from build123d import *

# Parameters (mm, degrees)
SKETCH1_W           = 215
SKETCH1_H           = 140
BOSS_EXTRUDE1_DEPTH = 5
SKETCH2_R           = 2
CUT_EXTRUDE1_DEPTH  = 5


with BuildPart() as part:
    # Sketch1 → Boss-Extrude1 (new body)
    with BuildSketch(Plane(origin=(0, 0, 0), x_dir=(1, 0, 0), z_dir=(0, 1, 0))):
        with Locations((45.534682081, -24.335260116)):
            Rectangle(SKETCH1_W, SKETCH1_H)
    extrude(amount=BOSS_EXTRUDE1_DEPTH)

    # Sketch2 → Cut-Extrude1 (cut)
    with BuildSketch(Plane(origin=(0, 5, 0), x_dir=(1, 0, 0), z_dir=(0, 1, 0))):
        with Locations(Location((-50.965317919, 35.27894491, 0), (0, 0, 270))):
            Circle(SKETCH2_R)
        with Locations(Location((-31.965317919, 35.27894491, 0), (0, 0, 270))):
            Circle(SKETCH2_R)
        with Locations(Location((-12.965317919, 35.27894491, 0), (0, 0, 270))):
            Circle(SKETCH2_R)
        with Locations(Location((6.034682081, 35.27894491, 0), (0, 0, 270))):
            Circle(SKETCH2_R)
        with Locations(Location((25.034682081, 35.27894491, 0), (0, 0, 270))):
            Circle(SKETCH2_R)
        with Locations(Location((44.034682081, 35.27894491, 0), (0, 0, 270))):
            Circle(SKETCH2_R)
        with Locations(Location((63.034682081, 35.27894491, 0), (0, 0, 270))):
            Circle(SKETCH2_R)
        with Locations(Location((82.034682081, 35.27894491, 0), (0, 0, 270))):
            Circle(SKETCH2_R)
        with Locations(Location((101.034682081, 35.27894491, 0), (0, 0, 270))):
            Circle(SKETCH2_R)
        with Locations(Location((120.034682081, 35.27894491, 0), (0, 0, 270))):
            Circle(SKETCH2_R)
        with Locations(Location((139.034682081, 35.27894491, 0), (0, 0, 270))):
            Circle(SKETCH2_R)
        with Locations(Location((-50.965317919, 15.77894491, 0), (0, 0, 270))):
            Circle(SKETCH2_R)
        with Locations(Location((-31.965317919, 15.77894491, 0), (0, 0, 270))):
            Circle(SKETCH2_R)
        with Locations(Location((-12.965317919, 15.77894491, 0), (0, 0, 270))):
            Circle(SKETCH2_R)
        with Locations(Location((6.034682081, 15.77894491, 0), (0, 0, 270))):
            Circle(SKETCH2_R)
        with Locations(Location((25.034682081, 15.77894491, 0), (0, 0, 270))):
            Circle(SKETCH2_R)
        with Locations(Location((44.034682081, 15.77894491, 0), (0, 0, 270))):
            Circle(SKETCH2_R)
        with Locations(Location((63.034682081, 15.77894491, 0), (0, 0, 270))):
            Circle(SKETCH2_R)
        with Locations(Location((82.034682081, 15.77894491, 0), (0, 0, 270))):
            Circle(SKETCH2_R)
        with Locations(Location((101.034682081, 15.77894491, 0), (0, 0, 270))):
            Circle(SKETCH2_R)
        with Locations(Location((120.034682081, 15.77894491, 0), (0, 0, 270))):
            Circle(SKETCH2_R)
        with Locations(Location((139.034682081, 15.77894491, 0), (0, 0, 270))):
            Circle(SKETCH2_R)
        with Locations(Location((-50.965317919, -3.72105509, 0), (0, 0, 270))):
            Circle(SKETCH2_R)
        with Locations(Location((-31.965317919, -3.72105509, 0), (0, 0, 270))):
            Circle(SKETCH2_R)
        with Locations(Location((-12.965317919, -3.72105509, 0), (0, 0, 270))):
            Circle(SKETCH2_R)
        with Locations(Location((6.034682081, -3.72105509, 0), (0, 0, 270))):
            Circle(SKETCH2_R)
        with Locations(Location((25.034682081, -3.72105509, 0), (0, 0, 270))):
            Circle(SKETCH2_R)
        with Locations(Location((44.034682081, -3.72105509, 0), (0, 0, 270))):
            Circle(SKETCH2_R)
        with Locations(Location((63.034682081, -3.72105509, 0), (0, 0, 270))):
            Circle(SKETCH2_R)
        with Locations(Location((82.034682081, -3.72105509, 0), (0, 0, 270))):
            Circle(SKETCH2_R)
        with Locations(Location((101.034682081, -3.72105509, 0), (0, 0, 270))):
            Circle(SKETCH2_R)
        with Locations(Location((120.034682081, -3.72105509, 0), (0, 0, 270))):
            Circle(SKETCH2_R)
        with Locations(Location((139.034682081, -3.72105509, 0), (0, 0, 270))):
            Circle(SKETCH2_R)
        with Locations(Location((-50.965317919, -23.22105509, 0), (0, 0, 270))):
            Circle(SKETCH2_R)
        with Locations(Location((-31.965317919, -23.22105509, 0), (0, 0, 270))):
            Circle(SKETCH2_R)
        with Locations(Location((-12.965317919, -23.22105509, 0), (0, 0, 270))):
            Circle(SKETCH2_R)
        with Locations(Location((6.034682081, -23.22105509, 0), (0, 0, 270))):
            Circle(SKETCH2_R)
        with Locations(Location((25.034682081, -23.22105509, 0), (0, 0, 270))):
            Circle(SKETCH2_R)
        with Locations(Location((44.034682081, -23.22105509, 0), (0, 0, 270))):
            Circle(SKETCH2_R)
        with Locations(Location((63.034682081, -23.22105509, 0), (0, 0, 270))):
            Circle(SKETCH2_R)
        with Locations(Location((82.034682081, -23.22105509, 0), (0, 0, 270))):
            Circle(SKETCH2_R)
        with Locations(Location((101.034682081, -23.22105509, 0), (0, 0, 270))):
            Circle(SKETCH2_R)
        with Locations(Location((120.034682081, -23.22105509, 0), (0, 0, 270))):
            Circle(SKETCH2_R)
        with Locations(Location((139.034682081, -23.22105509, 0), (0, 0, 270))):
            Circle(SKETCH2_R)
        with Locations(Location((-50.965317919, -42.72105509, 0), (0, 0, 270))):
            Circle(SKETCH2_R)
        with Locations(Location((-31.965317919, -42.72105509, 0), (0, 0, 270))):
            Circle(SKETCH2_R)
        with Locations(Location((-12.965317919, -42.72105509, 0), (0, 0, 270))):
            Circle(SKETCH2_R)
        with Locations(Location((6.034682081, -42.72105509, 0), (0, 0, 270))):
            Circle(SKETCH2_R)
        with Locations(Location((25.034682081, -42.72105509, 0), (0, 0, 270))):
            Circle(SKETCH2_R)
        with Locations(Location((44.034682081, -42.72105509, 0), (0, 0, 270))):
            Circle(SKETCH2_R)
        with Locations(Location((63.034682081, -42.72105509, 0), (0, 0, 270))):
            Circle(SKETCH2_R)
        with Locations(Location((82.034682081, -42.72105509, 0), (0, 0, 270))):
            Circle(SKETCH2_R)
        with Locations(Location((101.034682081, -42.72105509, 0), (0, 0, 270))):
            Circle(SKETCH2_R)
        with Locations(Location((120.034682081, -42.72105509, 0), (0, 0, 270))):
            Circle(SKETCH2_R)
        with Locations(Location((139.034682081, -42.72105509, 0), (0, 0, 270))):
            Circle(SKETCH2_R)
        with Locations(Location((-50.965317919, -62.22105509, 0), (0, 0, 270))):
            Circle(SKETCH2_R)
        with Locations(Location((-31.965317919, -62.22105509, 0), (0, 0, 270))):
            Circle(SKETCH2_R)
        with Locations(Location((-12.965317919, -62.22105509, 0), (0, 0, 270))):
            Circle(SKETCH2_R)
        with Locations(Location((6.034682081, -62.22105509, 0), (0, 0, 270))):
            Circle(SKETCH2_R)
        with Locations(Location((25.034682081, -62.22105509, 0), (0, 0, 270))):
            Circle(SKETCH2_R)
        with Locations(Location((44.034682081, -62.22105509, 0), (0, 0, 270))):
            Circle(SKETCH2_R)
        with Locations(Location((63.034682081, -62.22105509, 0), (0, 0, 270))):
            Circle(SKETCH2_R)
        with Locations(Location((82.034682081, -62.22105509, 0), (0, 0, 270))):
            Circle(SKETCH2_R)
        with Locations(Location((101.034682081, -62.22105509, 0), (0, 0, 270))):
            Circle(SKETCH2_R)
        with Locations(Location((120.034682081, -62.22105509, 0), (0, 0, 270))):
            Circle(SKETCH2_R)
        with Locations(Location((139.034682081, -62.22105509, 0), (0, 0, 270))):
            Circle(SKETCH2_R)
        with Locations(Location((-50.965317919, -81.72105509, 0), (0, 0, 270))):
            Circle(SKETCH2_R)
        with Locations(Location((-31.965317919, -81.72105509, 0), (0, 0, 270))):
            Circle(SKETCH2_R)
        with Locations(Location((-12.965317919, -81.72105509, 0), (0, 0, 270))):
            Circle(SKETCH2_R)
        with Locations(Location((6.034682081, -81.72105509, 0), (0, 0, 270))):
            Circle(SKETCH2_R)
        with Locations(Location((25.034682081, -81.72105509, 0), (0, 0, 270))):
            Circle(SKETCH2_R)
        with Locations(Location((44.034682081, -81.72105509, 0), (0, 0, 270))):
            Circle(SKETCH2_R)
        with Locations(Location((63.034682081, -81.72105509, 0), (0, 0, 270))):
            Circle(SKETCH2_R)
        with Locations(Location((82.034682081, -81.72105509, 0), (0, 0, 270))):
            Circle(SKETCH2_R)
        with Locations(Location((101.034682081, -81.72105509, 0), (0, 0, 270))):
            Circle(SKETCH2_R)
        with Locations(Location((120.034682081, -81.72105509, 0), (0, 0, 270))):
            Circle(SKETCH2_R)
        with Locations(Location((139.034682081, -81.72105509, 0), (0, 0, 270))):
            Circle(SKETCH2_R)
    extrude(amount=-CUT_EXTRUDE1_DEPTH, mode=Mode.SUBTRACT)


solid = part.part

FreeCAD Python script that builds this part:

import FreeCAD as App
import Part
import Sketcher
Q = App.Units.Quantity


def add_polygon(sketch, points):
    """Adds a closed chain of lines whose ends are joined by coincident constraints."""
    first, n = sketch.GeometryCount, len(points)
    for a, b in zip(points, points[1:] + points[:1]):
        sketch.addGeometry(Part.LineSegment(App.Vector(*a, 0), App.Vector(*b, 0)), False)
    for i in range(n):
        sketch.addConstraint(Sketcher.Constraint("Coincident", first + i, 2, first + (i + 1) % n, 1))

doc = App.newDocument("Part")
params = doc.addObject("Spreadsheet::Sheet", "Params")
for row, (alias, value) in enumerate([
    ("sketch1_width", "215 mm"),
    ("sketch1_height", "140 mm"),
    ("pad1_length", "5 mm"),
    ("sketch2_diameter", "4 mm"),
    ("pocket1_length", "5 mm"),
], start=1):
    params.set(f"A{row}", alias)
    params.set(f"B{row}", "=" + value)
    params.setAlias(f"B{row}", alias)

body = doc.addObject("PartDesign::Body", "Body")

sketch1 = body.newObject("Sketcher::SketchObject", "Sketch")
sketch1.AttachmentSupport = (doc.getObject("XZ_Plane"), [""])
sketch1.MapMode = "FlatFace"
add_polygon(sketch1, [(-62, -46), (-62, 94), (153, 94), (153, -46)])
sketch1.addConstraint([
    Sketcher.Constraint("Vertical", 0),
    Sketcher.Constraint("Horizontal", 1),
    Sketcher.Constraint("Vertical", 2),
    Sketcher.Constraint("Horizontal", 3),
    Sketcher.Constraint("DistanceX", 1, 1, 1, 2, Q("215 mm")),
    Sketcher.Constraint("DistanceY", 0, 1, 0, 2, Q("140 mm")),
    Sketcher.Constraint("DistanceY", -1, 1, 0, 2, Q("94.33526 mm")),
    Sketcher.Constraint("DistanceX", 0, 2, -1, 1, Q("61.965318 mm")),
])
sketch1.setExpression("Constraints[8]", "Params.sketch1_width")
sketch1.setExpression("Constraints[9]", "Params.sketch1_height")
pad1 = body.newObject("PartDesign::Pad", "Pad")
pad1.Profile = sketch1
pad1.setExpression("Length", "Params.pad1_length")
pad1.Reversed = True

sketch2 = body.newObject("Sketcher::SketchObject", "Sketch001")
sketch2.AttachmentSupport = (doc.getObject("XZ_Plane"), [""])
sketch2.MapMode = "FlatFace"
sketch2.AttachmentOffset = App.Placement(App.Vector(0, 0, -5), App.Rotation())
sketch2.addGeometry([
    Part.Circle(App.Vector(-51, -35.3, 0), App.Vector(0, 0, 1), 2),
    Part.Circle(App.Vector(-32, -35.3, 0), App.Vector(0, 0, 1), 2),
    Part.Circle(App.Vector(-13, -35.3, 0), App.Vector(0, 0, 1), 2),
    Part.Circle(App.Vector(6, -35.3, 0), App.Vector(0, 0, 1), 2),
    Part.Circle(App.Vector(25, -35.3, 0), App.Vector(0, 0, 1), 2),
    Part.Circle(App.Vector(44, -35.3, 0), App.Vector(0, 0, 1), 2),
    Part.Circle(App.Vector(63, -35.3, 0), App.Vector(0, 0, 1), 2),
    Part.Circle(App.Vector(82, -35.3, 0), App.Vector(0, 0, 1), 2),
    Part.Circle(App.Vector(101, -35.3, 0), App.Vector(0, 0, 1), 2),
    Part.Circle(App.Vector(120, -35.3, 0), App.Vector(0, 0, 1), 2),
    Part.Circle(App.Vector(139, -35.3, 0), App.Vector(0, 0, 1), 2),
    Part.Circle(App.Vector(-51, -15.8, 0), App.Vector(0, 0, 1), 2),
    Part.Circle(App.Vector(-32, -15.8, 0), App.Vector(0, 0, 1), 2),
    Part.Circle(App.Vector(-13, -15.8, 0), App.Vector(0, 0, 1), 2),
    Part.Circle(App.Vector(6, -15.8, 0), App.Vector(0, 0, 1), 2),
    Part.Circle(App.Vector(25, -15.8, 0), App.Vector(0, 0, 1), 2),
    Part.Circle(App.Vector(44, -15.8, 0), App.Vector(0, 0, 1), 2),
    Part.Circle(App.Vector(63, -15.8, 0), App.Vector(0, 0, 1), 2),
    Part.Circle(App.Vector(82, -15.8, 0), App.Vector(0, 0, 1), 2),
    Part.Circle(App.Vector(101, -15.8, 0), App.Vector(0, 0, 1), 2),
    Part.Circle(App.Vector(120, -15.8, 0), App.Vector(0, 0, 1), 2),
    Part.Circle(App.Vector(139, -15.8, 0), App.Vector(0, 0, 1), 2),
    Part.Circle(App.Vector(-51, 3.7, 0), App.Vector(0, 0, 1), 2),
    Part.Circle(App.Vector(-32, 3.7, 0), App.Vector(0, 0, 1), 2),
    Part.Circle(App.Vector(-13, 3.7, 0), App.Vector(0, 0, 1), 2),
    Part.Circle(App.Vector(6, 3.7, 0), App.Vector(0, 0, 1), 2),
    Part.Circle(App.Vector(25, 3.7, 0), App.Vector(0, 0, 1), 2),
    Part.Circle(App.Vector(44, 3.7, 0), App.Vector(0, 0, 1), 2),
    Part.Circle(App.Vector(63, 3.7, 0), App.Vector(0, 0, 1), 2),
    Part.Circle(App.Vector(82, 3.7, 0), App.Vector(0, 0, 1), 2),
    Part.Circle(App.Vector(101, 3.7, 0), App.Vector(0, 0, 1), 2),
    Part.Circle(App.Vector(120, 3.7, 0), App.Vector(0, 0, 1), 2),
    Part.Circle(App.Vector(139, 3.7, 0), App.Vector(0, 0, 1), 2),
    Part.Circle(App.Vector(-51, 23.2, 0), App.Vector(0, 0, 1), 2),
    Part.Circle(App.Vector(-32, 23.2, 0), App.Vector(0, 0, 1), 2),
    Part.Circle(App.Vector(-13, 23.2, 0), App.Vector(0, 0, 1), 2),
    Part.Circle(App.Vector(6, 23.2, 0), App.Vector(0, 0, 1), 2),
    Part.Circle(App.Vector(25, 23.2, 0), App.Vector(0, 0, 1), 2),
    Part.Circle(App.Vector(44, 23.2, 0), App.Vector(0, 0, 1), 2),
    Part.Circle(App.Vector(63, 23.2, 0), App.Vector(0, 0, 1), 2),
    Part.Circle(App.Vector(82, 23.2, 0), App.Vector(0, 0, 1), 2),
    Part.Circle(App.Vector(101, 23.2, 0), App.Vector(0, 0, 1), 2),
    Part.Circle(App.Vector(120, 23.2, 0), App.Vector(0, 0, 1), 2),
    Part.Circle(App.Vector(139, 23.2, 0), App.Vector(0, 0, 1), 2),
    Part.Circle(App.Vector(-51, 42.7, 0), App.Vector(0, 0, 1), 2),
    Part.Circle(App.Vector(-32, 42.7, 0), App.Vector(0, 0, 1), 2),
    Part.Circle(App.Vector(-13, 42.7, 0), App.Vector(0, 0, 1), 2),
    Part.Circle(App.Vector(6, 42.7, 0), App.Vector(0, 0, 1), 2),
    Part.Circle(App.Vector(25, 42.7, 0), App.Vector(0, 0, 1), 2),
    Part.Circle(App.Vector(44, 42.7, 0), App.Vector(0, 0, 1), 2),
    Part.Circle(App.Vector(63, 42.7, 0), App.Vector(0, 0, 1), 2),
    Part.Circle(App.Vector(82, 42.7, 0), App.Vector(0, 0, 1), 2),
    Part.Circle(App.Vector(101, 42.7, 0), App.Vector(0, 0, 1), 2),
    Part.Circle(App.Vector(120, 42.7, 0), App.Vector(0, 0, 1), 2),
    Part.Circle(App.Vector(139, 42.7, 0), App.Vector(0, 0, 1), 2),
    Part.Circle(App.Vector(-51, 62.2, 0), App.Vector(0, 0, 1), 2),
    Part.Circle(App.Vector(-32, 62.2, 0), App.Vector(0, 0, 1), 2),
    Part.Circle(App.Vector(-13, 62.2, 0), App.Vector(0, 0, 1), 2),
    Part.Circle(App.Vector(6, 62.2, 0), App.Vector(0, 0, 1), 2),
    Part.Circle(App.Vector(25, 62.2, 0), App.Vector(0, 0, 1), 2),
    Part.Circle(App.Vector(44, 62.2, 0), App.Vector(0, 0, 1), 2),
    Part.Circle(App.Vector(63, 62.2, 0), App.Vector(0, 0, 1), 2),
    Part.Circle(App.Vector(82, 62.2, 0), App.Vector(0, 0, 1), 2),
    Part.Circle(App.Vector(101, 62.2, 0), App.Vector(0, 0, 1), 2),
    Part.Circle(App.Vector(120, 62.2, 0), App.Vector(0, 0, 1), 2),
    Part.Circle(App.Vector(139, 62.2, 0), App.Vector(0, 0, 1), 2),
    Part.Circle(App.Vector(-51, 81.7, 0), App.Vector(0, 0, 1), 2),
    Part.Circle(App.Vector(-32, 81.7, 0), App.Vector(0, 0, 1), 2),
    Part.Circle(App.Vector(-13, 81.7, 0), App.Vector(0, 0, 1), 2),
    Part.Circle(App.Vector(6, 81.7, 0), App.Vector(0, 0, 1), 2),
    Part.Circle(App.Vector(25, 81.7, 0), App.Vector(0, 0, 1), 2),
    Part.Circle(App.Vector(44, 81.7, 0), App.Vector(0, 0, 1), 2),
    Part.Circle(App.Vector(63, 81.7, 0), App.Vector(0, 0, 1), 2),
    Part.Circle(App.Vector(82, 81.7, 0), App.Vector(0, 0, 1), 2),
    Part.Circle(App.Vector(101, 81.7, 0), App.Vector(0, 0, 1), 2),
    Part.Circle(App.Vector(120, 81.7, 0), App.Vector(0, 0, 1), 2),
    Part.Circle(App.Vector(139, 81.7, 0), App.Vector(0, 0, 1), 2),
], False)
sketch2.addConstraint([
    Sketcher.Constraint("Equal", 0, 1),
    Sketcher.Constraint("Equal", 1, 2),
    Sketcher.Constraint("Equal", 2, 3),
    Sketcher.Constraint("Equal", 3, 4),
    Sketcher.Constraint("Equal", 4, 5),
    Sketcher.Constraint("Equal", 5, 6),
    Sketcher.Constraint("Equal", 6, 7),
    Sketcher.Constraint("Equal", 7, 8),
    Sketcher.Constraint("Equal", 8, 9),
    Sketcher.Constraint("Equal", 9, 10),
    Sketcher.Constraint("Equal", 10, 11),
    Sketcher.Constraint("Equal", 11, 12),
    Sketcher.Constraint("Equal", 12, 13),
    Sketcher.Constraint("Equal", 13, 14),
    Sketcher.Constraint("Equal", 14, 15),
    Sketcher.Constraint("Equal", 15, 16),
    Sketcher.Constraint("Equal", 16, 17),
    Sketcher.Constraint("Equal", 17, 18),
    Sketcher.Constraint("Equal", 18, 19),
    Sketcher.Constraint("Equal", 19, 20),
    Sketcher.Constraint("Equal", 20, 21),
    Sketcher.Constraint("Equal", 21, 22),
    Sketcher.Constraint("Equal", 22, 23),
    Sketcher.Constraint("Equal", 23, 24),
    Sketcher.Constraint("Equal", 24, 25),
    Sketcher.Constraint("Equal", 25, 26),
    Sketcher.Constraint("Equal", 26, 27),
    Sketcher.Constraint("Equal", 27, 28),
    Sketcher.Constraint("Equal", 28, 29),
    Sketcher.Constraint("Equal", 29, 30),
    Sketcher.Constraint("Equal", 30, 31),
    Sketcher.Constraint("Equal", 31, 32),
    Sketcher.Constraint("Equal", 32, 33),
    Sketcher.Constraint("Equal", 33, 34),
    Sketcher.Constraint("Equal", 34, 35),
    Sketcher.Constraint("Equal", 35, 36),
    Sketcher.Constraint("Equal", 36, 37),
    Sketcher.Constraint("Equal", 37, 38),
    Sketcher.Constraint("Equal", 38, 39),
    Sketcher.Constraint("Equal", 39, 40),
    Sketcher.Constraint("Equal", 40, 41),
    Sketcher.Constraint("Equal", 41, 42),
    Sketcher.Constraint("Equal", 42, 43),
    Sketcher.Constraint("Equal", 43, 44),
    Sketcher.Constraint("Equal", 44, 45),
    Sketcher.Constraint("Equal", 45, 46),
    Sketcher.Constraint("Equal", 46, 47),
    Sketcher.Constraint("Equal", 47, 48),
    Sketcher.Constraint("Equal", 48, 49),
    Sketcher.Constraint("Equal", 49, 50),
    Sketcher.Constraint("Equal", 50, 51),
    Sketcher.Constraint("Equal", 51, 52),
    Sketcher.Constraint("Equal", 52, 53),
    Sketcher.Constraint("Equal", 53, 54),
    Sketcher.Constraint("Equal", 54, 55),
    Sketcher.Constraint("Equal", 55, 56),
    Sketcher.Constraint("Equal", 56, 57),
    Sketcher.Constraint("Equal", 57, 58),
    Sketcher.Constraint("Equal", 58, 59),
    Sketcher.Constraint("Equal", 59, 60),
    Sketcher.Constraint("Equal", 60, 61),
    Sketcher.Constraint("Equal", 61, 62),
    Sketcher.Constraint("Equal", 62, 63),
    Sketcher.Constraint("Equal", 63, 64),
    Sketcher.Constraint("Equal", 64, 65),
    Sketcher.Constraint("Equal", 65, 66),
    Sketcher.Constraint("Equal", 66, 67),
    Sketcher.Constraint("Equal", 67, 68),
    Sketcher.Constraint("Equal", 68, 69),
    Sketcher.Constraint("Equal", 69, 70),
    Sketcher.Constraint("Equal", 70, 71),
    Sketcher.Constraint("Equal", 71, 72),
    Sketcher.Constraint("Equal", 72, 73),
    Sketcher.Constraint("Equal", 73, 74),
    Sketcher.Constraint("Equal", 74, 75),
    Sketcher.Constraint("Equal", 75, 76),
    Sketcher.Constraint("Horizontal", 0, 3, 1, 3),
    Sketcher.Constraint("Horizontal", 1, 3, 2, 3),
    Sketcher.Constraint("Horizontal", 2, 3, 3, 3),
    Sketcher.Constraint("Horizontal", 3, 3, 4, 3),
    Sketcher.Constraint("Horizontal", 4, 3, 5, 3),
    Sketcher.Constraint("Horizontal", 5, 3, 6, 3),
    Sketcher.Constraint("Horizontal", 6, 3, 7, 3),
    Sketcher.Constraint("Horizontal", 7, 3, 8, 3),
    Sketcher.Constraint("Horizontal", 8, 3, 9, 3),
    Sketcher.Constraint("Horizontal", 9, 3, 10, 3),
    Sketcher.Constraint("Horizontal", 11, 3, 12, 3),
    Sketcher.Constraint("Horizontal", 12, 3, 13, 3),
    Sketcher.Constraint("Horizontal", 13, 3, 14, 3),
    Sketcher.Constraint("Horizontal", 14, 3, 15, 3),
    Sketcher.Constraint("Horizontal", 15, 3, 16, 3),
    Sketcher.Constraint("Horizontal", 16, 3, 17, 3),
    Sketcher.Constraint("Horizontal", 17, 3, 18, 3),
    Sketcher.Constraint("Horizontal", 18, 3, 19, 3),
    Sketcher.Constraint("Horizontal", 19, 3, 20, 3),
    Sketcher.Constraint("Horizontal", 20, 3, 21, 3),
    Sketcher.Constraint("Horizontal", 22, 3, 23, 3),
    Sketcher.Constraint("Horizontal", 23, 3, 24, 3),
    Sketcher.Constraint("Horizontal", 24, 3, 25, 3),
    Sketcher.Constraint("Horizontal", 25, 3, 26, 3),
    Sketcher.Constraint("Horizontal", 26, 3, 27, 3),
    Sketcher.Constraint("Horizontal", 27, 3, 28, 3),
    Sketcher.Constraint("Horizontal", 28, 3, 29, 3),
    Sketcher.Constraint("Horizontal", 29, 3, 30, 3),
    Sketcher.Constraint("Horizontal", 30, 3, 31, 3),
    Sketcher.Constraint("Horizontal", 31, 3, 32, 3),
    Sketcher.Constraint("Horizontal", 33, 3, 34, 3),
    Sketcher.Constraint("Horizontal", 34, 3, 35, 3),
    Sketcher.Constraint("Horizontal", 35, 3, 36, 3),
    Sketcher.Constraint("Horizontal", 36, 3, 37, 3),
    Sketcher.Constraint("Horizontal", 37, 3, 38, 3),
    Sketcher.Constraint("Horizontal", 38, 3, 39, 3),
    Sketcher.Constraint("Horizontal", 39, 3, 40, 3),
    Sketcher.Constraint("Horizontal", 40, 3, 41, 3),
    Sketcher.Constraint("Horizontal", 41, 3, 42, 3),
    Sketcher.Constraint("Horizontal", 42, 3, 43, 3),
    Sketcher.Constraint("Horizontal", 44, 3, 45, 3),
    Sketcher.Constraint("Horizontal", 45, 3, 46, 3),
    Sketcher.Constraint("Horizontal", 46, 3, 47, 3),
    Sketcher.Constraint("Horizontal", 47, 3, 48, 3),
    Sketcher.Constraint("Horizontal", 48, 3, 49, 3),
    Sketcher.Constraint("Horizontal", 49, 3, 50, 3),
    Sketcher.Constraint("Horizontal", 50, 3, 51, 3),
    Sketcher.Constraint("Horizontal", 51, 3, 52, 3),
    Sketcher.Constraint("Horizontal", 52, 3, 53, 3),
    Sketcher.Constraint("Horizontal", 53, 3, 54, 3),
    Sketcher.Constraint("Horizontal", 55, 3, 56, 3),
    Sketcher.Constraint("Horizontal", 56, 3, 57, 3),
    Sketcher.Constraint("Horizontal", 57, 3, 58, 3),
    Sketcher.Constraint("Horizontal", 58, 3, 59, 3),
    Sketcher.Constraint("Horizontal", 59, 3, 60, 3),
    Sketcher.Constraint("Horizontal", 60, 3, 61, 3),
    Sketcher.Constraint("Horizontal", 61, 3, 62, 3),
    Sketcher.Constraint("Horizontal", 62, 3, 63, 3),
    Sketcher.Constraint("Horizontal", 63, 3, 64, 3),
    Sketcher.Constraint("Horizontal", 64, 3, 65, 3),
    Sketcher.Constraint("Horizontal", 66, 3, 67, 3),
    Sketcher.Constraint("Horizontal", 67, 3, 68, 3),
    Sketcher.Constraint("Horizontal", 68, 3, 69, 3),
    Sketcher.Constraint("Horizontal", 69, 3, 70, 3),
    Sketcher.Constraint("Horizontal", 70, 3, 71, 3),
    Sketcher.Constraint("Horizontal", 71, 3, 72, 3),
    Sketcher.Constraint("Horizontal", 72, 3, 73, 3),
    Sketcher.Constraint("Horizontal", 73, 3, 74, 3),
    Sketcher.Constraint("Horizontal", 74, 3, 75, 3),
    Sketcher.Constraint("Horizontal", 75, 3, 76, 3),
    Sketcher.Constraint("Vertical", 0, 3, 11, 3),
    Sketcher.Constraint("Vertical", 1, 3, 12, 3),
    Sketcher.Constraint("Vertical", 2, 3, 13, 3),
    Sketcher.Constraint("Vertical", 3, 3, 14, 3),
    Sketcher.Constraint("Vertical", 4, 3, 15, 3),
    Sketcher.Constraint("Vertical", 5, 3, 16, 3),
    Sketcher.Constraint("Vertical", 6, 3, 17, 3),
    Sketcher.Constraint("Vertical", 7, 3, 18, 3),
    Sketcher.Constraint("Vertical", 8, 3, 19, 3),
    Sketcher.Constraint("Vertical", 9, 3, 20, 3),
    Sketcher.Constraint("Vertical", 10, 3, 21, 3),
    Sketcher.Constraint("Vertical", 11, 3, 22, 3),
    Sketcher.Constraint("Vertical", 12, 3, 23, 3),
    Sketcher.Constraint("Vertical", 13, 3, 24, 3),
    Sketcher.Constraint("Vertical", 14, 3, 25, 3),
    Sketcher.Constraint("Vertical", 15, 3, 26, 3),
    Sketcher.Constraint("Vertical", 16, 3, 27, 3),
    Sketcher.Constraint("Vertical", 17, 3, 28, 3),
    Sketcher.Constraint("Vertical", 18, 3, 29, 3),
    Sketcher.Constraint("Vertical", 19, 3, 30, 3),
    Sketcher.Constraint("Vertical", 20, 3, 31, 3),
    Sketcher.Constraint("Vertical", 21, 3, 32, 3),
    Sketcher.Constraint("Vertical", 22, 3, 33, 3),
    Sketcher.Constraint("Vertical", 23, 3, 34, 3),
    Sketcher.Constraint("Vertical", 24, 3, 35, 3),
    Sketcher.Constraint("Vertical", 25, 3, 36, 3),
    Sketcher.Constraint("Vertical", 26, 3, 37, 3),
    Sketcher.Constraint("Vertical", 27, 3, 38, 3),
    Sketcher.Constraint("Vertical", 28, 3, 39, 3),
    Sketcher.Constraint("Vertical", 29, 3, 40, 3),
    Sketcher.Constraint("Vertical", 30, 3, 41, 3),
    Sketcher.Constraint("Vertical", 31, 3, 42, 3),
    Sketcher.Constraint("Vertical", 32, 3, 43, 3),
    Sketcher.Constraint("Vertical", 33, 3, 44, 3),
    Sketcher.Constraint("Vertical", 34, 3, 45, 3),
    Sketcher.Constraint("Vertical", 35, 3, 46, 3),
    Sketcher.Constraint("Vertical", 36, 3, 47, 3),
    Sketcher.Constraint("Vertical", 37, 3, 48, 3),
    Sketcher.Constraint("Vertical", 38, 3, 49, 3),
    Sketcher.Constraint("Vertical", 39, 3, 50, 3),
    Sketcher.Constraint("Vertical", 40, 3, 51, 3),
    Sketcher.Constraint("Vertical", 41, 3, 52, 3),
    Sketcher.Constraint("Vertical", 42, 3, 53, 3),
    Sketcher.Constraint("Vertical", 43, 3, 54, 3),
    Sketcher.Constraint("Vertical", 44, 3, 55, 3),
    Sketcher.Constraint("Vertical", 45, 3, 56, 3),
    Sketcher.Constraint("Vertical", 46, 3, 57, 3),
    Sketcher.Constraint("Vertical", 47, 3, 58, 3),
    Sketcher.Constraint("Vertical", 48, 3, 59, 3),
    Sketcher.Constraint("Vertical", 49, 3, 60, 3),
    Sketcher.Constraint("Vertical", 50, 3, 61, 3),
    Sketcher.Constraint("Vertical", 51, 3, 62, 3),
    Sketcher.Constraint("Vertical", 52, 3, 63, 3),
    Sketcher.Constraint("Vertical", 53, 3, 64, 3),
    Sketcher.Constraint("Vertical", 54, 3, 65, 3),
    Sketcher.Constraint("Vertical", 55, 3, 66, 3),
    Sketcher.Constraint("Vertical", 56, 3, 67, 3),
    Sketcher.Constraint("Vertical", 57, 3, 68, 3),
    Sketcher.Constraint("Vertical", 58, 3, 69, 3),
    Sketcher.Constraint("Vertical", 59, 3, 70, 3),
    Sketcher.Constraint("Vertical", 60, 3, 71, 3),
    Sketcher.Constraint("Vertical", 61, 3, 72, 3),
    Sketcher.Constraint("Vertical", 62, 3, 73, 3),
    Sketcher.Constraint("Vertical", 63, 3, 74, 3),
    Sketcher.Constraint("Vertical", 64, 3, 75, 3),
    Sketcher.Constraint("Vertical", 65, 3, 76, 3),
    Sketcher.Constraint("Diameter", 0, Q("4 mm")),
    Sketcher.Constraint("DistanceX", 0, 3, -1, 1, Q("50.965318 mm")),
    Sketcher.Constraint("DistanceY", 0, 3, -1, 1, Q("35.278945 mm")),
    Sketcher.Constraint("DistanceX", 1, 3, -1, 1, Q("31.965318 mm")),
    Sketcher.Constraint("DistanceX", 2, 3, -1, 1, Q("12.965318 mm")),
    Sketcher.Constraint("DistanceX", -1, 1, 3, 3, Q("6.034682 mm")),
    Sketcher.Constraint("DistanceX", -1, 1, 4, 3, Q("25.034682 mm")),
    Sketcher.Constraint("DistanceX", -1, 1, 5, 3, Q("44.034682 mm")),
    Sketcher.Constraint("DistanceX", -1, 1, 6, 3, Q("63.034682 mm")),
    Sketcher.Constraint("DistanceX", -1, 1, 7, 3, Q("82.034682 mm")),
    Sketcher.Constraint("DistanceX", -1, 1, 8, 3, Q("101.034682 mm")),
    Sketcher.Constraint("DistanceX", -1, 1, 9, 3, Q("120.034682 mm")),
    Sketcher.Constraint("DistanceX", -1, 1, 10, 3, Q("139.034682 mm")),
    Sketcher.Constraint("DistanceY", 11, 3, -1, 1, Q("15.778945 mm")),
    Sketcher.Constraint("DistanceY", -1, 1, 22, 3, Q("3.721055 mm")),
    Sketcher.Constraint("DistanceY", -1, 1, 33, 3, Q("23.221055 mm")),
    Sketcher.Constraint("DistanceY", -1, 1, 44, 3, Q("42.721055 mm")),
    Sketcher.Constraint("DistanceY", -1, 1, 55, 3, Q("62.221055 mm")),
    Sketcher.Constraint("DistanceY", -1, 1, 66, 3, Q("81.721055 mm")),
])
sketch2.setExpression("Constraints[212]", "Params.sketch2_diameter")
pocket1 = body.newObject("PartDesign::Pocket", "Pocket")
pocket1.Profile = sketch2
pocket1.setExpression("Length", "Params.pocket1_length")
pocket1.Reversed = True

doc.recompute()
